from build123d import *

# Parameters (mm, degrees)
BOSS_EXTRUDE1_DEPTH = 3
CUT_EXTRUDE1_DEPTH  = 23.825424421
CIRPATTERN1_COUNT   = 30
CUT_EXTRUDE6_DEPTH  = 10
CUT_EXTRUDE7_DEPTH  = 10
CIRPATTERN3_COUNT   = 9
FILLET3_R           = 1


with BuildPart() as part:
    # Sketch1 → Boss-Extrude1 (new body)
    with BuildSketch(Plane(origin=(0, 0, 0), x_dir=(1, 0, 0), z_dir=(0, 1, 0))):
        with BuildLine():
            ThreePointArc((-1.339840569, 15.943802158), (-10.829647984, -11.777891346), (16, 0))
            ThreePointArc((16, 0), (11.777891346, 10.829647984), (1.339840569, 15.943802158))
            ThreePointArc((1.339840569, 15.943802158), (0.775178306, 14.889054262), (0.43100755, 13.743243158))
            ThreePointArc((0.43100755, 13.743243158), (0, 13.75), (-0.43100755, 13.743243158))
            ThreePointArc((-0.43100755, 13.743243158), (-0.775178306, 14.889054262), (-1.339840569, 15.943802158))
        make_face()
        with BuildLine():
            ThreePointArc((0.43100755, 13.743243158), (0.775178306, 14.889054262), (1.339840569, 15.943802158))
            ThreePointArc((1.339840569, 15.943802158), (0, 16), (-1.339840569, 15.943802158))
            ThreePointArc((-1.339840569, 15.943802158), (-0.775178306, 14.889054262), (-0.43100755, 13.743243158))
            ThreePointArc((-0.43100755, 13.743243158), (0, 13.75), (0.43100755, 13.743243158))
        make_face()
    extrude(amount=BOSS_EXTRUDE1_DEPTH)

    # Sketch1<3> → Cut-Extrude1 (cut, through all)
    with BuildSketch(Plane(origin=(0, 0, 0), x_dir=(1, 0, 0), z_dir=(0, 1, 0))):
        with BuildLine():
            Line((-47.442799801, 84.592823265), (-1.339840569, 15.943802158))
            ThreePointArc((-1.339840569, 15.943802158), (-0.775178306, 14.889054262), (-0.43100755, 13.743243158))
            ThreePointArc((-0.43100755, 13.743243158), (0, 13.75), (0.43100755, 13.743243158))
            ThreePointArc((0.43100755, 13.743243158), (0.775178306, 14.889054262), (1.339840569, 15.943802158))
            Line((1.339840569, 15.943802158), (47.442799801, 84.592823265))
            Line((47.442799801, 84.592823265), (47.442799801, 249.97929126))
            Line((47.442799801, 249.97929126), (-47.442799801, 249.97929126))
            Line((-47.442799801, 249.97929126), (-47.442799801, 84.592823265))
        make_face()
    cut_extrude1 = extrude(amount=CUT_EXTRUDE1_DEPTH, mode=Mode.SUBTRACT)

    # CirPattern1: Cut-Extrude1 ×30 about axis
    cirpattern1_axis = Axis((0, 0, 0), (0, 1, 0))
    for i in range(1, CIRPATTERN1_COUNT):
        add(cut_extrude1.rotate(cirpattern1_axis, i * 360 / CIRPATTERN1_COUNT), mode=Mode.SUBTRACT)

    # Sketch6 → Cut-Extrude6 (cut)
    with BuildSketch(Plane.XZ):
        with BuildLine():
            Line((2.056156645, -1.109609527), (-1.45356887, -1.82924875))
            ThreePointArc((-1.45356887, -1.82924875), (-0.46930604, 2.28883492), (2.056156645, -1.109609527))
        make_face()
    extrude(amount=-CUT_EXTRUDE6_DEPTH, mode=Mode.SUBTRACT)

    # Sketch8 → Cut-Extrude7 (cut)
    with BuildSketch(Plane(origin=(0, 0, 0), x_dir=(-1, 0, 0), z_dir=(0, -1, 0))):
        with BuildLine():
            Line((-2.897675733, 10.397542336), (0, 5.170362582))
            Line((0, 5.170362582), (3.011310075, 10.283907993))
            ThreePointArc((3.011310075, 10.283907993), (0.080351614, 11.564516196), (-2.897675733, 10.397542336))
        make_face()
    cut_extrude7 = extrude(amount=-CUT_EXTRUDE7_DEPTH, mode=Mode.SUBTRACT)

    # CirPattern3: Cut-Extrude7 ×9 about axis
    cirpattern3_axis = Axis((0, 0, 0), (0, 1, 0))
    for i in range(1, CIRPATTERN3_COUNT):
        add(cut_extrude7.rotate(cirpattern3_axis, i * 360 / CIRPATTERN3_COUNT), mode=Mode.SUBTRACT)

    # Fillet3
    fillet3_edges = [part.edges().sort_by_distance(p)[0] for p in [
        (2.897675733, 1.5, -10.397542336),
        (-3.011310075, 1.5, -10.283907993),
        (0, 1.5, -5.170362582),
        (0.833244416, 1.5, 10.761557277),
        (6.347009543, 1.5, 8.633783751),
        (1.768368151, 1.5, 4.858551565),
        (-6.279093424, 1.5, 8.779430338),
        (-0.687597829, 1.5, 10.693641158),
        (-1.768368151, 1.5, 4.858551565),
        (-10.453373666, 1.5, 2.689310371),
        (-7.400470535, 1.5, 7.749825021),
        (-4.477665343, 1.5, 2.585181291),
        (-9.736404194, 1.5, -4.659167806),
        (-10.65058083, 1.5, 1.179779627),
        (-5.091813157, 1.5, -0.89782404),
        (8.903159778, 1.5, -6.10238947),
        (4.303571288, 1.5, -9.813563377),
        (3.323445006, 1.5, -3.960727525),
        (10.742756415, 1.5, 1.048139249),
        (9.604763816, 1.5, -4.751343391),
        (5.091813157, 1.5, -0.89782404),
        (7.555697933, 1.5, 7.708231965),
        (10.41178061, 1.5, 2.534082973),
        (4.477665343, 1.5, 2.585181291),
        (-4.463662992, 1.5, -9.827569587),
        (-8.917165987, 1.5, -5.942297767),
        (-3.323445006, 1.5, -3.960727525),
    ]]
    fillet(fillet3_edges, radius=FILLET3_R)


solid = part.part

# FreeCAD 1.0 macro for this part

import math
import FreeCAD as App
import Part
import Sketcher

V = App.Vector
Q = App.Units.Quantity


def edges_at(feature, points):
    """Names of the edges that pass closest to the given points."""
    edges = feature.Shape.Edges
    near = lambda p: min(range(len(edges)), key=lambda i: edges[i].distToShape(Part.Vertex(*p))[0])
    return sorted({f"Edge{near(p) + 1}" for p in points})

doc = App.newDocument("Part")
body = doc.addObject("PartDesign::Body", "Body")

# Sketch on XZ plane
sketch1 = doc.addObject("Sketcher::SketchObject", "Sketch")
body.addObject(sketch1)
sketch1.AttachmentSupport = (doc.XZ_Plane, [""])
sketch1.MapMode = "FlatFace"
sketch1.addGeometry([
    Part.ArcOfCircle(Part.Circle(V(0, 0, 0), V(0, 0, 1), 16), math.radians(0), math.radians(265.196424)),
    Part.ArcOfCircle(Part.Circle(V(0, 0, 0), V(0, 0, 1), 16), math.radians(-85.196424), math.radians(0)),
    Part.ArcOfCircle(Part.Circle(V(0, 0, 0), V(0, 0, 1), 16), math.radians(-94.803576), math.radians(-85.196424)),
], False)
sketch1.addConstraint([
    Sketcher.Constraint("Tangent", 0, 1, 1, 2),
    Sketcher.Constraint("Tangent", 1, 1, 2, 2),
    Sketcher.Constraint("Tangent", 2, 1, 0, 2),
    Sketcher.Constraint("Coincident", 0, 3, -1, 1),
    Sketcher.Constraint("PointOnObject", 0, 1, -1),
    Sketcher.Constraint("Horizontal", 1, 1, 2, 1),
    Sketcher.Constraint("Radius", 0, Q("16 mm")),
    Sketcher.Constraint("DistanceX", -1, 1, 1, 1, Q("1.339841 mm")),
])
pad1 = doc.addObject("PartDesign::Pad", "Pad")
body.addObject(pad1)
pad1.Profile = sketch1
pad1.Length = 3
pad1.Reversed = True

# Sketch on XZ plane
sketch2 = doc.addObject("Sketcher::SketchObject", "Sketch001")
body.addObject(sketch2)
sketch2.AttachmentSupport = (doc.XZ_Plane, [""])
sketch2.MapMode = "FlatFace"
sketch2.addGeometry([
    Part.LineSegment(V(-47.4428, -84.592823, 0), V(-1.339841, -15.943802, 0)),  # 0
    Part.ArcOfCircle(Part.Circle(V(-6.32083, -12.598695, 0), V(0, 0, 1), 6), math.radians(-33.884318), math.radians(-10.997028)),  # 1
    Part.ArcOfCircle(Part.Circle(V(0, 0.000001, 0), V(0, 0, 1), 13.750001), math.radians(-91.796288), math.radians(-88.203712)),  # 2
    Part.ArcOfCircle(Part.Circle(V(6.32083, -12.598695, 0), V(0, 0, 1), 6), math.radians(-169.002972), math.radians(-146.115682)),  # 3
    Part.LineSegment(V(1.339841, -15.943802, 0), V(47.4428, -84.592823, 0)),  # 4
    Part.LineSegment(V(47.4428, -84.592823, 0), V(47.4428, -249.979291, 0)),  # 5
    Part.LineSegment(V(47.4428, -249.979291, 0), V(-47.4428, -249.979291, 0)),  # 6
    Part.LineSegment(V(-47.4428, -249.979291, 0), V(-47.4428, -84.592823, 0)),  # 7
], False)
sketch2.addConstraint([
    Sketcher.Constraint("Coincident", 0, 2, 1, 1),
    Sketcher.Constraint("Coincident", 1, 2, 2, 1),
    Sketcher.Constraint("Coincident", 2, 2, 3, 1),
    Sketcher.Constraint("Coincident", 3, 2, 4, 1),
    Sketcher.Constraint("Coincident", 4, 2, 5, 1),
    Sketcher.Constraint("Coincident", 5, 2, 6, 1),
    Sketcher.Constraint("Coincident", 6, 2, 7, 1),
    Sketcher.Constraint("Coincident", 7, 2, 0, 1),
    Sketcher.Constraint("Vertical", 5),
    Sketcher.Constraint("Horizontal", 6),
    Sketcher.Constraint("Vertical", 7),
    Sketcher.Constraint("Coincident", 2, 3, -1, 1),
    Sketcher.Constraint("Radius", 1, Q("6 mm")),
    Sketcher.Constraint("Radius", 3, Q("6 mm")),
    Sketcher.Constraint("Radius", 2, Q("13.750001 mm")),
    Sketcher.Constraint("DistanceX", 6, 2, 6, 1, Q("94.8856 mm")),
    Sketcher.Constraint("DistanceX", -1, 1, 4, 2, Q("47.4428 mm")),
    Sketcher.Constraint("DistanceY", 5, 2, 5, 1, Q("165.386468 mm")),
    Sketcher.Constraint("DistanceY", 7, 1, 7, 2, Q("165.386468 mm")),
    Sketcher.Constraint("DistanceX", 1, 3, -1, 1, Q("6.32083 mm")),
    Sketcher.Constraint("DistanceX", -1, 1, 3, 3, Q("6.32083 mm")),
    Sketcher.Constraint("DistanceX", 0, 2, -1, 1, Q("1.339841 mm")),
    Sketcher.Constraint("DistanceX", -1, 1, 3, 2, Q("1.339841 mm")),
    Sketcher.Constraint("DistanceY", 5, 2, -1, 1, Q("249.979291 mm")),
    Sketcher.Constraint("DistanceY", 0, 2, 1, 2, Q("2.200559 mm")),
    Sketcher.Constraint("DistanceY", 1, 2, 3, 3, Q("1.144548 mm")),
])
pocket1 = doc.addObject("PartDesign::Pocket", "Pocket")
body.addObject(pocket1)
pocket1.Profile = sketch2
pocket1.Type = "ThroughAll"
doc.recompute()

polarpattern = doc.addObject("PartDesign::PolarPattern", "PolarPattern")
body.addObject(polarpattern)
polarpattern.Originals = [pocket1]
polarpattern.Axis = (doc.Y_Axis, [""])
polarpattern.Angle = 360
polarpattern.Occurrences = 30
body.Tip = polarpattern

# Sketch on XZ plane
sketch3 = doc.addObject("Sketcher::SketchObject", "Sketch002")
body.addObject(sketch3)
sketch3.AttachmentSupport = (doc.XZ_Plane, [""])
sketch3.MapMode = "FlatFace"
sketch3.addGeometry([
    Part.LineSegment(V(-1.453569, -1.829249, 0), V(2.056157, -1.10961, 0)),
    Part.ArcOfCircle(Part.Circle(V(0, 0, 0), V(0, 0, 1), 2.336453), math.radians(-28.353617), math.radians(231.528428)),
], False)
sketch3.addConstraint([
    Sketcher.Constraint("Coincident", 0, 1, 1, 2),
    Sketcher.Constraint("Coincident", 1, 1, 0, 2),
    Sketcher.Constraint("Coincident", 1, 3, -1, 1),
    Sketcher.Constraint("Radius", 1, Q("2.336453 mm")),
    Sketcher.Constraint("DistanceX", 0, 1, -1, 1, Q("1.453569 mm")),
    Sketcher.Constraint("DistanceY", 1, 1, -1, 1, Q("1.10961 mm")),
])
pocket2 = doc.addObject("PartDesign::Pocket", "Pocket001")
body.addObject(pocket2)
pocket2.Profile = sketch3
pocket2.Length = 10

# Sketch on XZ plane
sketch4 = doc.addObject("Sketcher::SketchObject", "Sketch003")
body.addObject(sketch4)
sketch4.AttachmentSupport = (doc.XZ_Plane, [""])
sketch4.MapMode = "FlatFace"
sketch4.addGeometry([
    Part.LineSegment(V(2.897676, -10.397542, 0), V(0, -5.170363, 0)),
    Part.LineSegment(V(0, -5.170363, 0), V(-3.01131, -10.283908, 0)),
    Part.ArcOfCircle(Part.Circle(V(0, -7.386232, 0), V(0, 0, 1), 4.179056), math.radians(-136.101706), math.radians(-46.101706)),
], False)
sketch4.addConstraint([
    Sketcher.Constraint("Coincident", 0, 2, 1, 1),
    Sketcher.Constraint("Coincident", 1, 2, 2, 1),
    Sketcher.Constraint("Coincident", 2, 2, 0, 1),
    Sketcher.Constraint("PointOnObject", 2, 3, -2),
    Sketcher.Constraint("PointOnObject", 0, 2, -2),
    Sketcher.Constraint("Radius", 2, Q("4.179056 mm")),
    Sketcher.Constraint("DistanceX", 1, 2, -1, 1, Q("3.01131 mm")),
    Sketcher.Constraint("DistanceY", 2, 3, 0, 2, Q("2.21587 mm")),
    Sketcher.Constraint("DistanceY", 2, 2, 2, 3, Q("3.01131 mm")),
    Sketcher.Constraint("DistanceY", 2, 3, -1, 1, Q("7.386232 mm")),
])
pocket3 = doc.addObject("PartDesign::Pocket", "Pocket002")
body.addObject(pocket3)
pocket3.Profile = sketch4
pocket3.Length = 10
doc.recompute()

polarpattern2 = doc.addObject("PartDesign::PolarPattern", "PolarPattern001")
body.addObject(polarpattern2)
polarpattern2.Originals = [pocket3]
polarpattern2.Axis = (doc.Y_Axis, [""])
polarpattern2.Angle = 360
polarpattern2.Occurrences = 9
body.Tip = polarpattern2
doc.recompute()

fillet = doc.addObject("PartDesign::Fillet", "Fillet")
body.addObject(fillet)
fillet.Base = (polarpattern2, edges_at(polarpattern2, [
    (2.898, 1.5, -10.398),
    (-3.011, 1.5, -10.284),
    (0, 1.5, -5.17),
    (0.833, 1.5, 10.762),
    (6.347, 1.5, 8.634),
    (1.768, 1.5, 4.859),
    (-6.279, 1.5, 8.779),
    (-0.688, 1.5, 10.694),
    (-1.768, 1.5, 4.859),
    (-10.453, 1.5, 2.689),
    (-7.4, 1.5, 7.75),
    (-4.478, 1.5, 2.585),
    (-9.736, 1.5, -4.659),
    (-10.651, 1.5, 1.18),
    (-5.092, 1.5, -0.898),
    (8.903, 1.5, -6.102),
    (4.304, 1.5, -9.814),
    (3.323, 1.5, -3.961),
    (10.743, 1.5, 1.048),
    (9.605, 1.5, -4.751),
    (5.092, 1.5, -0.898),
    (7.556, 1.5, 7.708),
    (10.412, 1.5, 2.534),
    (4.478, 1.5, 2.585),
    (-4.464, 1.5, -9.828),
    (-8.917, 1.5, -5.942),
    (-3.323, 1.5, -3.961),
]))
fillet.Radius = 1

doc.recompute()
